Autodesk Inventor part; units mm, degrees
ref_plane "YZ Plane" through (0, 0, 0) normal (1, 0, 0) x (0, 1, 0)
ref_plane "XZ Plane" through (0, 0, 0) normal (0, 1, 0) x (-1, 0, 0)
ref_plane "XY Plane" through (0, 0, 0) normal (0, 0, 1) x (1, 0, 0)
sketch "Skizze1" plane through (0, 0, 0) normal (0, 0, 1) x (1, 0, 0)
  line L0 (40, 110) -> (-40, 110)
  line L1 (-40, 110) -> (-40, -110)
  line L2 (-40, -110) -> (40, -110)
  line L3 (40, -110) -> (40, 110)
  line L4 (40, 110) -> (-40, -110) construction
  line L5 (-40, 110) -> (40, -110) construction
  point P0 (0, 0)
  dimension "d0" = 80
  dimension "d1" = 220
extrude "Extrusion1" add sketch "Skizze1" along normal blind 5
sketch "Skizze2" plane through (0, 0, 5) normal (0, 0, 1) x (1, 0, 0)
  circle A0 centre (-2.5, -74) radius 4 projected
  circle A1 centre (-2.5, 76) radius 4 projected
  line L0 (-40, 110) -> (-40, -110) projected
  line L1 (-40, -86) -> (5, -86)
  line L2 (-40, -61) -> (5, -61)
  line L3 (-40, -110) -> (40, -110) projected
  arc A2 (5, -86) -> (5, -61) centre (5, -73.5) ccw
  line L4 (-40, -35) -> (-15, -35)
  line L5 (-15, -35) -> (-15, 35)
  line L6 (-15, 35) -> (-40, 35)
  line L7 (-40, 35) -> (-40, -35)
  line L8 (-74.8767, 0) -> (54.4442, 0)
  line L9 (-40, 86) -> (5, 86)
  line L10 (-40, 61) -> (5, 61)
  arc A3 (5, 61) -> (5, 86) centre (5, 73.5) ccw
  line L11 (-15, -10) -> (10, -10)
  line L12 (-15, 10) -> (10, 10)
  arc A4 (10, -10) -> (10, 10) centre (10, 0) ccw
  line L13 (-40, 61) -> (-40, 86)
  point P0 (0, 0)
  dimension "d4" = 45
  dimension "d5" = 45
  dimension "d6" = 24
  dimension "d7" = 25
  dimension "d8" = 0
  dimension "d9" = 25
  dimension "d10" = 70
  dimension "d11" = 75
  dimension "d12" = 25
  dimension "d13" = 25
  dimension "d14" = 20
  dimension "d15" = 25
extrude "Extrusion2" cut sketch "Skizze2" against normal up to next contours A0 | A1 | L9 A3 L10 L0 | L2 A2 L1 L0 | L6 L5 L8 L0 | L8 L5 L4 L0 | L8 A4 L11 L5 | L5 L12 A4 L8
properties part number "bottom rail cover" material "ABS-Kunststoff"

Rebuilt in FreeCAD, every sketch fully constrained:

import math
import FreeCAD as App
import Part
import Sketcher
from FreeCAD import Vector
Q = App.Units.Quantity

doc = App.newDocument("Part")
body = doc.addObject("PartDesign::Body", "Body")

# Sketch on XY plane
sketch1 = body.newObject("Sketcher::SketchObject", "Sketch")
sketch1.AttachmentSupport = (doc.getObject("XY_Plane"), [""])
sketch1.MapMode = "FlatFace"
sketch1.addGeometry([
    Part.LineSegment(Vector(40, -110, 0), Vector(40, 110, 0)),
    Part.LineSegment(Vector(40, 110, 0), Vector(-40, 110, 0)),
    Part.LineSegment(Vector(-40, 110, 0), Vector(-40, -110, 0)),
    Part.LineSegment(Vector(-40, -110, 0), Vector(40, -110, 0)),
], False)
sketch1.addConstraint([
    Sketcher.Constraint("Coincident", 0, 2, 1, 1),
    Sketcher.Constraint("Coincident", 1, 2, 2, 1),
    Sketcher.Constraint("Coincident", 2, 2, 3, 1),
    Sketcher.Constraint("Coincident", 3, 2, 0, 1),
    Sketcher.Constraint("Vertical", 0),
    Sketcher.Constraint("Horizontal", 1),
    Sketcher.Constraint("Vertical", 2),
    Sketcher.Constraint("Horizontal", 3),
    Sketcher.Constraint("Symmetric", 0, 2, 2, 2, -1, 1),
    Sketcher.Constraint("DistanceX", 1, 2, 1, 1, Q("80 mm")),
    Sketcher.Constraint("DistanceY", 0, 1, 0, 2, Q("220 mm")),
])
pad1 = body.newObject("PartDesign::Pad", "Pad")
pad1.Profile = sketch1
pad1.Length = 5

# Sketch on XY plane
sketch2 = body.newObject("Sketcher::SketchObject", "Sketch001")
sketch2.AttachmentSupport = (doc.getObject("XY_Plane"), [""])
sketch2.MapMode = "FlatFace"
sketch2.AttachmentOffset = App.Placement(Vector(0, 0, 5), App.Rotation())
sketch2.addGeometry([
    Part.LineSegment(Vector(5, -61, 0), Vector(-40, -61, 0)),  # 0
    Part.LineSegment(Vector(-40, -61, 0), Vector(-40, -86, 0)),  # 1
    Part.LineSegment(Vector(-40, -86, 0), Vector(5, -86, 0)),  # 2
    Part.ArcOfCircle(Part.Circle(Vector(5, -73.5, 0), Vector(0, 0, 1), 12.5), math.radians(-90), math.radians(90)),  # 3
    Part.LineSegment(Vector(5, 86, 0), Vector(-40, 86, 0)),  # 4
    Part.LineSegment(Vector(-40, 86, 0), Vector(-40, 61, 0)),  # 5
    Part.LineSegment(Vector(-40, 61, 0), Vector(5, 61, 0)),  # 6
    Part.ArcOfCircle(Part.Circle(Vector(5, 73.5, 0), Vector(0, 0, 1), 12.5), math.radians(-90), math.radians(90)),  # 7
    Part.LineSegment(Vector(-15, 35, 0), Vector(-40, 35, 0)),  # 8
    Part.LineSegment(Vector(-40, 35, 0), Vector(-40, -35, 0)),  # 9
    Part.LineSegment(Vector(-40, -35, 0), Vector(-15, -35, 0)),  # 10
    Part.LineSegment(Vector(-15, -35, 0), Vector(-15, -10, 0)),  # 11
    Part.LineSegment(Vector(-15, -10, 0), Vector(10, -10, 0)),  # 12
    Part.ArcOfCircle(Part.Circle(Vector(10, 0, 0), Vector(0, 0, 1), 10), math.radians(-90), math.radians(90)),  # 13
    Part.LineSegment(Vector(10, 10, 0), Vector(-15, 10, 0)),  # 14
    Part.LineSegment(Vector(-15, 10, 0), Vector(-15, 35, 0)),  # 15
], False)
sketch2.addConstraint([
    Sketcher.Constraint("Coincident", 0, 2, 1, 1),
    Sketcher.Constraint("Coincident", 1, 2, 2, 1),
    Sketcher.Constraint("Tangent", 2, 2, 3, 1),
    Sketcher.Constraint("Tangent", 3, 2, 0, 1),
    Sketcher.Constraint("Coincident", 4, 2, 5, 1),
    Sketcher.Constraint("Coincident", 5, 2, 6, 1),
    Sketcher.Constraint("Tangent", 6, 2, 7, 1),
    Sketcher.Constraint("Tangent", 7, 2, 4, 1),
    Sketcher.Constraint("Coincident", 8, 2, 9, 1),
    Sketcher.Constraint("Coincident", 9, 2, 10, 1),
    Sketcher.Constraint("Coincident", 10, 2, 11, 1),
    Sketcher.Constraint("Coincident", 11, 2, 12, 1),
    Sketcher.Constraint("Tangent", 12, 2, 13, 1),
    Sketcher.Constraint("Tangent", 13, 2, 14, 1),
    Sketcher.Constraint("Coincident", 14, 2, 15, 1),
    Sketcher.Constraint("Coincident", 15, 2, 8, 1),
    Sketcher.Constraint("Horizontal", 0),
    Sketcher.Constraint("Vertical", 1),
    Sketcher.Constraint("Horizontal", 2),
    Sketcher.Constraint("Horizontal", 4),
    Sketcher.Constraint("Vertical", 5),
    Sketcher.Constraint("Horizontal", 6),
    Sketcher.Constraint("Horizontal", 8),
    Sketcher.Constraint("Vertical", 9),
    Sketcher.Constraint("Horizontal", 10),
    Sketcher.Constraint("Vertical", 11),
    Sketcher.Constraint("Horizontal", 12),
    Sketcher.Constraint("Horizontal", 14),
    Sketcher.Constraint("Vertical", 15),
    Sketcher.Constraint("Equal", 3, 7),
    Sketcher.Constraint("Symmetric", 3, 3, 7, 3, -1),
    Sketcher.Constraint("Symmetric", 11, 2, 14, 2, -1),
    Sketcher.Constraint("Vertical", 1, 2, 4, 2),
    Sketcher.Constraint("Vertical", 5, 2, 8, 2),
    Sketcher.Constraint("Equal", 10, 12),
    Sketcher.Constraint("Equal", 14, 1),
    Sketcher.Constraint("Equal", 5, 11),
    Sketcher.Constraint("Equal", 11, 15),
    Sketcher.Constraint("Radius", 13, Q("10 mm")),
    Sketcher.Constraint("Radius", 3, Q("12.5 mm")),
    Sketcher.Constraint("DistanceX", 0, 2, 0, 1, Q("45 mm")),
    Sketcher.Constraint("DistanceX", -1, 1, 3, 3, Q("5 mm")),
    Sketcher.Constraint("DistanceY", 0, 2, -1, 1, Q("61 mm")),
])
pocket1 = body.newObject("PartDesign::Pocket", "Pocket")
pocket1.Profile = sketch2
pocket1.Type = "UpToFirst"

doc.recompute()
